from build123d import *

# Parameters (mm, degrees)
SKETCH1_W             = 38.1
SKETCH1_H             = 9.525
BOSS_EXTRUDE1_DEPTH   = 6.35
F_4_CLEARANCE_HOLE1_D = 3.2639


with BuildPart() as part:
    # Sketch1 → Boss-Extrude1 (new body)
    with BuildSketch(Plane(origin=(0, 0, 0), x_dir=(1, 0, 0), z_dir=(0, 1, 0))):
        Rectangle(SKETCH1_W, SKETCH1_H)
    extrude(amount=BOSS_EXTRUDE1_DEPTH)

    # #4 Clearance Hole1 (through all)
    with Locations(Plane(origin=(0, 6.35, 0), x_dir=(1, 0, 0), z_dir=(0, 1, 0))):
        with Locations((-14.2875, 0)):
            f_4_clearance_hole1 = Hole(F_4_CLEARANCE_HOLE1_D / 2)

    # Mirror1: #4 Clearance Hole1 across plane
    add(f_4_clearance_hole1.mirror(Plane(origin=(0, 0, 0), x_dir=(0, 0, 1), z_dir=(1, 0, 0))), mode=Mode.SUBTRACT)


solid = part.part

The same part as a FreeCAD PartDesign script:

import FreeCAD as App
import Part
import Sketcher

V = App.Vector
Q = App.Units.Quantity


def add_polygon(sketch, points):
    """Adds a closed chain of lines whose ends are joined by coincident constraints."""
    first, n = sketch.GeometryCount, len(points)
    for a, b in zip(points, points[1:] + points[:1]):
        sketch.addGeometry(Part.LineSegment(App.Vector(*a, 0), App.Vector(*b, 0)), False)
    for i in range(n):
        sketch.addConstraint(Sketcher.Constraint("Coincident", first + i, 2, first + (i + 1) % n, 1))

doc = App.newDocument("Part")
body = doc.addObject("PartDesign::Body", "Body")

sketch1 = body.newObject("Sketcher::SketchObject", "Sketch")
sketch1.AttachmentSupport = (doc.getObject("XZ_Plane"), [""])
sketch1.MapMode = "FlatFace"
add_polygon(sketch1, [(-19, -5), (-19, 5), (19, 5), (19, -5)])
sketch1.addConstraint([
    Sketcher.Constraint("Vertical", 0),
    Sketcher.Constraint("Horizontal", 1),
    Sketcher.Constraint("Vertical", 2),
    Sketcher.Constraint("Horizontal", 3),
    Sketcher.Constraint("Symmetric", 0, 2, 2, 2, -1, 1),
    Sketcher.Constraint("DistanceX", 1, 1, 1, 2, Q("1.5 in")),
    Sketcher.Constraint("DistanceY", 0, 1, 0, 2, Q("0.375 in")),
])
pad1 = body.newObject("PartDesign::Pad", "Pad")
pad1.Profile = sketch1
pad1.Length = Q("0.25 in")
pad1.Reversed = True

sketch2 = body.newObject("Sketcher::SketchObject", "Sketch001")
sketch2.AttachmentSupport = (doc.getObject("XZ_Plane"), [""])
sketch2.MapMode = "FlatFace"
sketch2.AttachmentOffset = App.Placement(V(0, 0, -0.25 * 25.4), App.Rotation())
sketch2.addGeometry(Part.Circle(V(-14.3, 0, 0), V(0, 0, 1), 1.6), False)
sketch2.addConstraint([
    Sketcher.Constraint("PointOnObject", 0, 3, -1),
    Sketcher.Constraint("Diameter", 0, Q("0.1285 in")),
    Sketcher.Constraint("DistanceX", 0, 3, -1, 1, Q("0.5625 in")),
])
doc.recompute()
hole = body.newObject("PartDesign::Hole", "Hole")
hole.Profile = sketch2
hole.ThreadType = "None"
hole.Diameter = Q("0.1285 in")
hole.DepthType = "ThroughAll"
hole.Reversed = True
doc.recompute()

mirrored = body.newObject("PartDesign::Mirrored", "Mirrored")
mirrored.Originals = [hole]
mirrored.MirrorPlane = (doc.getObject("YZ_Plane"), [""])
body.Tip = mirrored

doc.recompute()
